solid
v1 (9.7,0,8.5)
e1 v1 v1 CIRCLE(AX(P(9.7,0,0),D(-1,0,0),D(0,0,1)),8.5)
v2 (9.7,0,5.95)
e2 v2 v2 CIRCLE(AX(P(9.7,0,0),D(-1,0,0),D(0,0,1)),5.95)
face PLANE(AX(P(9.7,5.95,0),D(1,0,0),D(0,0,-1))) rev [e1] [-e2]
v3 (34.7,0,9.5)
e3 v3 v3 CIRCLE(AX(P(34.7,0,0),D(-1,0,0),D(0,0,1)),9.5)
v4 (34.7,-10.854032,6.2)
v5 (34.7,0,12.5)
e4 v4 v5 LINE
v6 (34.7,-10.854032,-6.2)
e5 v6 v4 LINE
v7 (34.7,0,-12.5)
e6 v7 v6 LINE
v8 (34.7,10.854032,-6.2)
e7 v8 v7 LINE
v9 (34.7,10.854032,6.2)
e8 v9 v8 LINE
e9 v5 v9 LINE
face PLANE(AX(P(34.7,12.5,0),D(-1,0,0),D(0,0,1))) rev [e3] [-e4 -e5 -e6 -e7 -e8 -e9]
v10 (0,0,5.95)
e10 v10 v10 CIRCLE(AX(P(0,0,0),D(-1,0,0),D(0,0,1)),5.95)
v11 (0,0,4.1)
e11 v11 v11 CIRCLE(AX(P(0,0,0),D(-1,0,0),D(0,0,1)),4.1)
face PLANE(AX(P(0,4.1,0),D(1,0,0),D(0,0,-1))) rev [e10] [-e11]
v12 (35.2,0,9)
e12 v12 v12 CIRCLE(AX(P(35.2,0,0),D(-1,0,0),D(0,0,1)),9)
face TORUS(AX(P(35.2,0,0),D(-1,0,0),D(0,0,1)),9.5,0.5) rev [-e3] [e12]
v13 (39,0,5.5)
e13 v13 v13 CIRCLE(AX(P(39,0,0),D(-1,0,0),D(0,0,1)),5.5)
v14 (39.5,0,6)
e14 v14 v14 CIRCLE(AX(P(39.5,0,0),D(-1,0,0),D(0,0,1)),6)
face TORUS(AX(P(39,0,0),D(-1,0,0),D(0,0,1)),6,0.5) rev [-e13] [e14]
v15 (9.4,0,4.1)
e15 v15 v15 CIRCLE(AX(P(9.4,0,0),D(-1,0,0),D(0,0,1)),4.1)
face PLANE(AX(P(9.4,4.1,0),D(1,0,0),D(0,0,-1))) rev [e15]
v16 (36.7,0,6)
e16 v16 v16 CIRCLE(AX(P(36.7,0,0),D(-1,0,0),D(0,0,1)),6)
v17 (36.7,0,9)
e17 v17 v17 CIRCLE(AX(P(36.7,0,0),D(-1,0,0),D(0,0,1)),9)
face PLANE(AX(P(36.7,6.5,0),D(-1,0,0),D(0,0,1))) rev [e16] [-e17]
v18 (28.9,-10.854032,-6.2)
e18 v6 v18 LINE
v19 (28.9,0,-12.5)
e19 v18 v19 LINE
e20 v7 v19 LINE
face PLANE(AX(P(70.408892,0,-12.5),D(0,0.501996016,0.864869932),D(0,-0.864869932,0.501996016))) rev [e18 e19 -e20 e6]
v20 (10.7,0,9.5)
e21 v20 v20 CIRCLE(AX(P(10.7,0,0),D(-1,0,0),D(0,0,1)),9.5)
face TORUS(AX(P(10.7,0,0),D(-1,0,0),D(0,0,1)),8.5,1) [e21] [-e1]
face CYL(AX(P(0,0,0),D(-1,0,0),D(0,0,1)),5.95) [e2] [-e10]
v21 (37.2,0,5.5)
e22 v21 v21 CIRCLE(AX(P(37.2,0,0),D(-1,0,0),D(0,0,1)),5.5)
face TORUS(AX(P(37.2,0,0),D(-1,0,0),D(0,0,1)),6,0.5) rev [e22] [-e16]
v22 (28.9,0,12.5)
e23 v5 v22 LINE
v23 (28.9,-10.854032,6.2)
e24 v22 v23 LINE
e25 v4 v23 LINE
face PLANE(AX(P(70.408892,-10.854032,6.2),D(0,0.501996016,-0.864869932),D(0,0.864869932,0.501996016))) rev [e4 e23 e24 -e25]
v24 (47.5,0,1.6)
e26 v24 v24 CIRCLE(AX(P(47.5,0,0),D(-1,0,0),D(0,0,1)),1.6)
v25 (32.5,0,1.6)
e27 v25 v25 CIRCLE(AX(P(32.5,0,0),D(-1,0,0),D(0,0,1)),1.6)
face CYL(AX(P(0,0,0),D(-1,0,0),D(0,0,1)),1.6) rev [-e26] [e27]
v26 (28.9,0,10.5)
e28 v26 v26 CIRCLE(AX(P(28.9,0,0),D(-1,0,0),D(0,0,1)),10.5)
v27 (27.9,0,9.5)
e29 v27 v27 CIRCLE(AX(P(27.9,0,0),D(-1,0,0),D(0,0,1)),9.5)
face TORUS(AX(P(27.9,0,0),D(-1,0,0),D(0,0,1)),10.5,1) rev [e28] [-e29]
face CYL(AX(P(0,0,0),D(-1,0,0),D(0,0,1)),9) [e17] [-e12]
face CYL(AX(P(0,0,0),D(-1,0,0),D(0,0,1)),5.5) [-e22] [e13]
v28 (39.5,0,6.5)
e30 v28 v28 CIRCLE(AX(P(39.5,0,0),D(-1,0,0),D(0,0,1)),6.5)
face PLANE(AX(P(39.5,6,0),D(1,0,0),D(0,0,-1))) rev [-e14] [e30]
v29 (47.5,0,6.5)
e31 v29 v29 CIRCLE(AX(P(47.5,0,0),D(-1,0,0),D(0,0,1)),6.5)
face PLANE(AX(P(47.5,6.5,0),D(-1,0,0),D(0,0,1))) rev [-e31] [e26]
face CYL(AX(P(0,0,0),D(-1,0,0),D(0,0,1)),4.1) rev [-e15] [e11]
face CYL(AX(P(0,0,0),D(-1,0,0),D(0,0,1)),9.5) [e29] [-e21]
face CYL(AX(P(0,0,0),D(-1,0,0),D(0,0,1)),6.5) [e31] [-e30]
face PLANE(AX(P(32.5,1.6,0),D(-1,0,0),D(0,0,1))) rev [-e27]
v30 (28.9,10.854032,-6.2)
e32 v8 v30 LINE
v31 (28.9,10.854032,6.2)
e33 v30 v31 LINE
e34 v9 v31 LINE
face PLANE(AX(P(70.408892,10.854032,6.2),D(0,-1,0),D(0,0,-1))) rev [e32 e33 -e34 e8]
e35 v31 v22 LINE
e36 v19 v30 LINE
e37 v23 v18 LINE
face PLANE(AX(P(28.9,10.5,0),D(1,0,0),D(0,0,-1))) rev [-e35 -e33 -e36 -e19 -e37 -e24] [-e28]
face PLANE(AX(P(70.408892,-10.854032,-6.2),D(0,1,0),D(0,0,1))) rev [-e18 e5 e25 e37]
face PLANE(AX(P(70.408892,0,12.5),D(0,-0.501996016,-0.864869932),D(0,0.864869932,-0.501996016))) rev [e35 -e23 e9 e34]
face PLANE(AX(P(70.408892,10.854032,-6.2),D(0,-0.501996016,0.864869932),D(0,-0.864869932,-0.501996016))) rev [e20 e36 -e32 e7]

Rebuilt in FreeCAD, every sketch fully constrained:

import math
import FreeCAD as App
import Part
import Sketcher

V = App.Vector

doc = App.newDocument("Part")
body = doc.addObject("PartDesign::Body", "Body")

# Sketch on XY plane
sketch1 = body.newObject("Sketcher::SketchObject", "Sketch")
sketch1.AttachmentSupport = (doc.getObject("XY_Plane"), [""])
sketch1.MapMode = "FlatFace"
sketch1.addGeometry([
    Part.LineSegment(V(0, 5.95, 0), V(0, 4.1, 0)),  # 0
    Part.LineSegment(V(0, 4.1, 0), V(9.4, 4.1, 0)),  # 1
    Part.LineSegment(V(9.4, 4.1, 0), V(9.4, 0, 0)),  # 2
    Part.LineSegment(V(9.4, 0, 0), V(32.5, 0, 0)),  # 3
    Part.LineSegment(V(32.5, 0, 0), V(32.5, 1.6, 0)),  # 4
    Part.LineSegment(V(32.5, 1.6, 0), V(47.5, 1.6, 0)),  # 5
    Part.LineSegment(V(47.5, 1.6, 0), V(47.5, 6.5, 0)),  # 6
    Part.LineSegment(V(47.5, 6.5, 0), V(39.5, 6.5, 0)),  # 7
    Part.LineSegment(V(39.5, 6.5, 0), V(39.5, 6, 0)),  # 8
    Part.ArcOfCircle(Part.Circle(V(39, 6, 0), V(0, 0, 1), 0.5), math.radians(-90), math.radians(0)),  # 9
    Part.LineSegment(V(39, 5.5, 0), V(37.2, 5.5, 0)),  # 10
    Part.ArcOfCircle(Part.Circle(V(37.2, 6, 0), V(0, 0, 1), 0.5), math.radians(180), math.radians(270)),  # 11
    Part.LineSegment(V(36.7, 6, 0), V(36.7, 9, 0)),  # 12
    Part.LineSegment(V(36.7, 9, 0), V(35.2, 9, 0)),  # 13
    Part.ArcOfCircle(Part.Circle(V(35.2, 9.5, 0), V(0, 0, 1), 0.5), math.radians(180), math.radians(270)),  # 14
    Part.LineSegment(V(34.7, 9.5, 0), V(34.7, 12.5, 0)),  # 15
    Part.LineSegment(V(34.7, 12.5, 0), V(28.9, 12.5, 0)),  # 16
    Part.LineSegment(V(28.9, 12.5, 0), V(28.9, 10.5, 0)),  # 17
    Part.ArcOfCircle(Part.Circle(V(27.9, 10.5, 0), V(0, 0, 1), 1), math.radians(-90), math.radians(0)),  # 18
    Part.LineSegment(V(27.9, 9.5, 0), V(10.7, 9.5, 0)),  # 19
    Part.ArcOfCircle(Part.Circle(V(10.7, 8.5, 0), V(0, 0, 1), 1), math.radians(90), math.radians(180)),  # 20
    Part.LineSegment(V(9.7, 8.5, 0), V(9.7, 5.95, 0)),  # 21
    Part.LineSegment(V(9.7, 5.95, 0), V(0, 5.95, 0)),  # 22
], False)
sketch1.addConstraint([
    Sketcher.Constraint("Coincident", 0, 2, 1, 1),
    Sketcher.Constraint("Coincident", 1, 2, 2, 1),
    Sketcher.Constraint("Coincident", 2, 2, 3, 1),
    Sketcher.Constraint("Coincident", 3, 2, 4, 1),
    Sketcher.Constraint("Coincident", 4, 2, 5, 1),
    Sketcher.Constraint("Coincident", 5, 2, 6, 1),
    Sketcher.Constraint("Coincident", 6, 2, 7, 1),
    Sketcher.Constraint("Coincident", 7, 2, 8, 1),
    Sketcher.Constraint("Tangent", 8, 2, 9, 2),
    Sketcher.Constraint("Tangent", 9, 1, 10, 1),
    Sketcher.Constraint("Tangent", 10, 2, 11, 2),
    Sketcher.Constraint("Tangent", 11, 1, 12, 1),
    Sketcher.Constraint("Coincident", 12, 2, 13, 1),
    Sketcher.Constraint("Tangent", 13, 2, 14, 2),
    Sketcher.Constraint("Tangent", 14, 1, 15, 1),
    Sketcher.Constraint("Coincident", 15, 2, 16, 1),
    Sketcher.Constraint("Coincident", 16, 2, 17, 1),
    Sketcher.Constraint("Tangent", 17, 2, 18, 2),
    Sketcher.Constraint("Tangent", 18, 1, 19, 1),
    Sketcher.Constraint("Tangent", 19, 2, 20, 1),
    Sketcher.Constraint("Tangent", 20, 2, 21, 1),
    Sketcher.Constraint("Coincident", 21, 2, 22, 1),
    Sketcher.Constraint("Coincident", 22, 2, 0, 1),
    Sketcher.Constraint("Vertical", 0),
    Sketcher.Constraint("Horizontal", 1),
    Sketcher.Constraint("Vertical", 2),
    Sketcher.Constraint("Horizontal", 3),
    Sketcher.Constraint("Vertical", 4),
    Sketcher.Constraint("Horizontal", 5),
    Sketcher.Constraint("Vertical", 6),
    Sketcher.Constraint("Horizontal", 7),
    Sketcher.Constraint("Vertical", 8),
    Sketcher.Constraint("Horizontal", 10),
    Sketcher.Constraint("Vertical", 12),
    Sketcher.Constraint("Horizontal", 13),
    Sketcher.Constraint("Vertical", 15),
    Sketcher.Constraint("Horizontal", 16),
    Sketcher.Constraint("Vertical", 17),
    Sketcher.Constraint("Horizontal", 19),
    Sketcher.Constraint("Vertical", 21),
    Sketcher.Constraint("Horizontal", 22),
    Sketcher.Constraint("Equal", 9, 11),
    Sketcher.Constraint("Equal", 11, 14),
    Sketcher.Constraint("Equal", 18, 20),
    Sketcher.Constraint("PointOnObject", 0, 2, -2),
    Sketcher.Constraint("PointOnObject", 2, 2, -1),
    Sketcher.Constraint("Horizontal", 14, 1, 18, 1),
    Sketcher.Constraint("Equal", 12, 15),
    Sketcher.Constraint("Radius", 18, 1.0),
    Sketcher.Constraint("Radius", 9, 0.5),
    Sketcher.Constraint("DistanceX", 5, 1, 5, 2, 15.0),
    Sketcher.Constraint("DistanceX", 7, 2, 7, 1, 8.0),
    Sketcher.Constraint("DistanceY", 12, 1, 12, 2, 3.0),
    Sketcher.Constraint("DistanceX", 1, 1, 1, 2, 9.4),
    Sketcher.Constraint("DistanceX", 3, 1, 3, 2, 23.1),
    Sketcher.Constraint("DistanceX", 10, 2, 10, 1, 1.8),
    Sketcher.Constraint("DistanceX", 13, 2, 13, 1, 1.5),
    Sketcher.Constraint("DistanceX", 16, 2, 16, 1, 5.8),
    Sketcher.Constraint("DistanceX", 19, 2, 19, 1, 17.2),
    Sketcher.Constraint("DistanceY", 2, 2, 2, 1, 4.1),
    Sketcher.Constraint("DistanceY", 4, 1, 4, 2, 1.6),
    Sketcher.Constraint("DistanceY", 6, 1, 6, 2, 4.9),
    Sketcher.Constraint("DistanceY", 8, 2, 8, 1, 0.5),
    Sketcher.Constraint("DistanceY", 0, 2, 0, 1, 1.85),
])
revolution = body.newObject("PartDesign::Revolution", "Revolution")
revolution.Profile = sketch1
revolution.ReferenceAxis = (sketch1, ["H_Axis"])
revolution.Angle = 360

# Sketch on YZ plane
sketch2 = body.newObject("Sketcher::SketchObject", "Sketch001")
sketch2.AttachmentSupport = (doc.getObject("YZ_Plane"), [""])
sketch2.MapMode = "FlatFace"
sketch2.AttachmentOffset = App.Placement(V(0, 0, 28.9), App.Rotation())
sketch2.addGeometry([
    Part.LineSegment(V(19, 19, 0), V(-19, 19, 0)),  # 0
    Part.LineSegment(V(-19, 19, 0), V(-19, -19, 0)),  # 1
    Part.LineSegment(V(-19, -19, 0), V(19, -19, 0)),  # 2
    Part.LineSegment(V(19, -19, 0), V(19, 19, 0)),  # 3
    Part.LineSegment(V(11, 6, 0), V(11, -6, 0)),  # 4
    Part.LineSegment(V(11, -6, 0), V(0, -12, 0)),  # 5
    Part.LineSegment(V(0, -12, 0), V(-11, -6, 0)),  # 6
    Part.LineSegment(V(-11, -6, 0), V(-11, 6, 0)),  # 7
    Part.LineSegment(V(-11, 6, 0), V(0, 12, 0)),  # 8
    Part.LineSegment(V(0, 12, 0), V(11, 6, 0)),  # 9
], False)
sketch2.addConstraint([
    Sketcher.Constraint("Coincident", 0, 2, 1, 1),
    Sketcher.Constraint("Coincident", 1, 2, 2, 1),
    Sketcher.Constraint("Coincident", 2, 2, 3, 1),
    Sketcher.Constraint("Coincident", 3, 2, 0, 1),
    Sketcher.Constraint("Coincident", 4, 2, 5, 1),
    Sketcher.Constraint("Coincident", 5, 2, 6, 1),
    Sketcher.Constraint("Coincident", 6, 2, 7, 1),
    Sketcher.Constraint("Coincident", 7, 2, 8, 1),
    Sketcher.Constraint("Coincident", 8, 2, 9, 1),
    Sketcher.Constraint("Coincident", 9, 2, 4, 1),
    Sketcher.Constraint("Horizontal", 0),
    Sketcher.Constraint("Vertical", 1),
    Sketcher.Constraint("Horizontal", 2),
    Sketcher.Constraint("Vertical", 3),
    Sketcher.Constraint("Vertical", 4),
    Sketcher.Constraint("Vertical", 7),
    Sketcher.Constraint("Symmetric", 0, 2, 2, 2, -1, 1),
    Sketcher.Constraint("Symmetric", 4, 2, 7, 2, -1, 1),
    Sketcher.Constraint("Symmetric", 5, 2, 8, 2, -1, 1),
    Sketcher.Constraint("PointOnObject", 5, 2, -2),
    Sketcher.Constraint("Parallel", 6, 9),
    Sketcher.Constraint("Horizontal", 4, 2, 6, 2),
    Sketcher.Constraint("Equal", 2, 1),
    Sketcher.Constraint("DistanceY", 4, 2, 4, 1, 12.4),
    Sketcher.Constraint("DistanceY", 5, 2, -1, 1, 12.5),
    Sketcher.Constraint("DistanceX", 0, 2, 0, 1, 38.842),
    Sketcher.Constraint("Distance", 5, 12.5499),
])
pocket1 = body.newObject("PartDesign::Pocket", "Pocket")
pocket1.Profile = sketch2
pocket1.Length = 5.8
pocket1.Reversed = True

doc.recompute()
